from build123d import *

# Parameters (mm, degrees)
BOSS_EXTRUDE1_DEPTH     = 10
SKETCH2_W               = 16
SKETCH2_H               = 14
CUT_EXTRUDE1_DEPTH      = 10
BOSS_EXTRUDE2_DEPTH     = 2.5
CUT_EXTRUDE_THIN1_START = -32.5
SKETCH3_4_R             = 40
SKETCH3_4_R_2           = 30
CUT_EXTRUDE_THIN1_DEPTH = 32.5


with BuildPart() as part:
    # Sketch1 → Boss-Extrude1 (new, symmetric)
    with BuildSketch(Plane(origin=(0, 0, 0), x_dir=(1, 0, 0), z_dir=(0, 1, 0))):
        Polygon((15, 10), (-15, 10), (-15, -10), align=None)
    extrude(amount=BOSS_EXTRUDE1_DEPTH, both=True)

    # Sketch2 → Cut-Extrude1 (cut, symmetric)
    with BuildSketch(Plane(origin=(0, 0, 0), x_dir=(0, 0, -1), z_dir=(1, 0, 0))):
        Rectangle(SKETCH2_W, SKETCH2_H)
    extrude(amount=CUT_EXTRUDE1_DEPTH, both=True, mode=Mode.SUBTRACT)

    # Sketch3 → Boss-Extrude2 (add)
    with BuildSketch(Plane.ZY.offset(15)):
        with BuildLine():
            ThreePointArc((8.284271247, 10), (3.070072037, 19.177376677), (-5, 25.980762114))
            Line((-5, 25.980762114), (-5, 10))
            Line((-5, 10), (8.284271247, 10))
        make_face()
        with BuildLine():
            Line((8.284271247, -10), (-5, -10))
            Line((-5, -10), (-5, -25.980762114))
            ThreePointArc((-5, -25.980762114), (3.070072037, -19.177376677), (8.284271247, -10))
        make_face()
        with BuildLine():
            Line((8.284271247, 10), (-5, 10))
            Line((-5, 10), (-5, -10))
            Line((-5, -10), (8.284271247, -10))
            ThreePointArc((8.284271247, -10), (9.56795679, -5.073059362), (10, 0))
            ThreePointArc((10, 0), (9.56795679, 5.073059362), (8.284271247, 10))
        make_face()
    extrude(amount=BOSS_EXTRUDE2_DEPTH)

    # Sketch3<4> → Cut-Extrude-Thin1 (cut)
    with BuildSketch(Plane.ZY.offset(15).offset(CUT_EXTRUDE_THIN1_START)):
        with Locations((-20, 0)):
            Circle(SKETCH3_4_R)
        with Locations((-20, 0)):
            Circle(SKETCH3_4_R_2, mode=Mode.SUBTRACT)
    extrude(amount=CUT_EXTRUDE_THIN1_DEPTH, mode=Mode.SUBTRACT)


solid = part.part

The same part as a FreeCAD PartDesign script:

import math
import FreeCAD as App
import Part
import Sketcher
Q = App.Units.Quantity

doc = App.newDocument("Part")
body = doc.addObject("PartDesign::Body", "Body")

# Sketch on XZ plane
sketch1 = doc.addObject("Sketcher::SketchObject", "Sketch")
body.addObject(sketch1)
sketch1.AttachmentSupport = (doc.XZ_Plane, [""])
sketch1.MapMode = "FlatFace"
sketch1.addGeometry(Part.LineSegment(App.Vector(15, -10, 0), App.Vector(-15, -10, 0)), False)
sketch1.addGeometry(Part.LineSegment(App.Vector(-15, -10, 0), App.Vector(-15, 10, 0)), False)
sketch1.addGeometry(Part.LineSegment(App.Vector(-15, 10, 0), App.Vector(15, -10, 0)), False)
sketch1.addConstraint(Sketcher.Constraint("Coincident", 0, 2, 1, 1))
sketch1.addConstraint(Sketcher.Constraint("Coincident", 1, 2, 2, 1))
sketch1.addConstraint(Sketcher.Constraint("Coincident", 2, 2, 0, 1))
sketch1.addConstraint(Sketcher.Constraint("Horizontal", 0))
sketch1.addConstraint(Sketcher.Constraint("Vertical", 1))
sketch1.addConstraint(Sketcher.Constraint("Symmetric", 1, 2, 2, 2, -1, 1))
sketch1.addConstraint(Sketcher.Constraint("DistanceX", 0, 2, 0, 1, Q("30 mm")))
sketch1.addConstraint(Sketcher.Constraint("DistanceY", 1, 1, 1, 2, Q("20 mm")))
pad1 = doc.addObject("PartDesign::Pad", "Pad")
body.addObject(pad1)
pad1.Profile = sketch1
pad1.Length = 20
pad1.Midplane = True

# Sketch on YZ plane
sketch2 = doc.addObject("Sketcher::SketchObject", "Sketch001")
body.addObject(sketch2)
sketch2.AttachmentSupport = (doc.YZ_Plane, [""])
sketch2.MapMode = "FlatFace"
sketch2.addGeometry(Part.LineSegment(App.Vector(7, 8, 0), App.Vector(-7, 8, 0)), False)
sketch2.addGeometry(Part.LineSegment(App.Vector(-7, 8, 0), App.Vector(-7, -8, 0)), False)
sketch2.addGeometry(Part.LineSegment(App.Vector(-7, -8, 0), App.Vector(7, -8, 0)), False)
sketch2.addGeometry(Part.LineSegment(App.Vector(7, -8, 0), App.Vector(7, 8, 0)), False)
sketch2.addConstraint(Sketcher.Constraint("Coincident", 0, 2, 1, 1))
sketch2.addConstraint(Sketcher.Constraint("Coincident", 1, 2, 2, 1))
sketch2.addConstraint(Sketcher.Constraint("Coincident", 2, 2, 3, 1))
sketch2.addConstraint(Sketcher.Constraint("Coincident", 3, 2, 0, 1))
sketch2.addConstraint(Sketcher.Constraint("Horizontal", 0))
sketch2.addConstraint(Sketcher.Constraint("Vertical", 1))
sketch2.addConstraint(Sketcher.Constraint("Horizontal", 2))
sketch2.addConstraint(Sketcher.Constraint("Vertical", 3))
sketch2.addConstraint(Sketcher.Constraint("Symmetric", 0, 2, 2, 2, -1, 1))
sketch2.addConstraint(Sketcher.Constraint("DistanceX", 0, 2, 0, 1, Q("14 mm")))
sketch2.addConstraint(Sketcher.Constraint("DistanceY", 1, 2, 1, 1, Q("16 mm")))
pocket1 = doc.addObject("PartDesign::Pocket", "Pocket")
body.addObject(pocket1)
pocket1.Profile = sketch2
pocket1.Length = 20
pocket1.Midplane = True

# Sketch on YZ plane
sketch3 = doc.addObject("Sketcher::SketchObject", "Sketch002")
body.addObject(sketch3)
sketch3.AttachmentSupport = (doc.YZ_Plane, [""])
sketch3.MapMode = "FlatFace"
sketch3.AttachmentOffset = App.Placement(App.Vector(0, 0, -15), App.Rotation())
sketch3.addGeometry(Part.ArcOfCircle(Part.Circle(App.Vector(0, -20, 0), App.Vector(0, 0, 1), 30), math.radians(30), math.radians(70.528779)), False)
sketch3.addGeometry(Part.LineSegment(App.Vector(25.980762, -5, 0), App.Vector(-25.980762, -5, 0)), False)
sketch3.addGeometry(Part.ArcOfCircle(Part.Circle(App.Vector(0, -20, 0), App.Vector(0, 0, 1), 30), math.radians(109.471221), math.radians(150)), False)
sketch3.addGeometry(Part.ArcOfCircle(Part.Circle(App.Vector(0, -20, 0), App.Vector(0, 0, 1), 30), math.radians(90), math.radians(109.471221)), False)
sketch3.addGeometry(Part.ArcOfCircle(Part.Circle(App.Vector(0, -20, 0), App.Vector(0, 0, 1), 30), math.radians(70.528779), math.radians(90)), False)
sketch3.addConstraint(Sketcher.Constraint("Coincident", 0, 1, 1, 1))
sketch3.addConstraint(Sketcher.Constraint("Coincident", 1, 2, 2, 2))
sketch3.addConstraint(Sketcher.Constraint("Tangent", 2, 1, 3, 2))
sketch3.addConstraint(Sketcher.Constraint("Tangent", 3, 1, 4, 2))
sketch3.addConstraint(Sketcher.Constraint("Tangent", 4, 1, 0, 2))
sketch3.addConstraint(Sketcher.Constraint("Horizontal", 1))
sketch3.addConstraint(Sketcher.Constraint("Coincident", 2, 3, 0, 3))
sketch3.addConstraint(Sketcher.Constraint("Equal", 0, 2))
sketch3.addConstraint(Sketcher.Constraint("Symmetric", 2, 1, 4, 1, -2))
sketch3.addConstraint(Sketcher.Constraint("PointOnObject", 3, 1, -2))
sketch3.addConstraint(Sketcher.Constraint("Radius", 0, Q("30 mm")))
sketch3.addConstraint(Sketcher.Constraint("DistanceY", 0, 3, -1, 1, Q("20 mm")))
sketch3.addConstraint(Sketcher.Constraint("DistanceY", 0, 1, -1, 1, Q("5 mm")))
sketch3.addConstraint(Sketcher.Constraint("DistanceX", 2, 1, -1, 1, Q("10 mm")))
pad2 = doc.addObject("PartDesign::Pad", "Pad001")
body.addObject(pad2)
pad2.Profile = sketch3
pad2.Length = 2.5
pad2.Reversed = True

# Sketch on YZ plane
sketch4 = doc.addObject("Sketcher::SketchObject", "Sketch003")
body.addObject(sketch4)
sketch4.AttachmentSupport = (doc.YZ_Plane, [""])
sketch4.MapMode = "FlatFace"
sketch4.AttachmentOffset = App.Placement(App.Vector(0, 0, 17.5), App.Rotation())
sketch4.addGeometry(Part.Circle(App.Vector(0, -20, 0), App.Vector(0, 0, 1), 40), False)
sketch4.addGeometry(Part.Circle(App.Vector(0, -20, 0), App.Vector(0, 0, 1), 30), False)
sketch4.addConstraint(Sketcher.Constraint("Coincident", 1, 3, 0, 3))
sketch4.addConstraint(Sketcher.Constraint("PointOnObject", 0, 3, -2))
sketch4.addConstraint(Sketcher.Constraint("Diameter", 0, Q("80 mm")))
sketch4.addConstraint(Sketcher.Constraint("Diameter", 1, Q("60 mm")))
sketch4.addConstraint(Sketcher.Constraint("DistanceY", 0, 3, -1, 1, Q("20 mm")))
pocket2 = doc.addObject("PartDesign::Pocket", "Pocket001")
body.addObject(pocket2)
pocket2.Profile = sketch4
pocket2.Length = 32.5

doc.recompute()
